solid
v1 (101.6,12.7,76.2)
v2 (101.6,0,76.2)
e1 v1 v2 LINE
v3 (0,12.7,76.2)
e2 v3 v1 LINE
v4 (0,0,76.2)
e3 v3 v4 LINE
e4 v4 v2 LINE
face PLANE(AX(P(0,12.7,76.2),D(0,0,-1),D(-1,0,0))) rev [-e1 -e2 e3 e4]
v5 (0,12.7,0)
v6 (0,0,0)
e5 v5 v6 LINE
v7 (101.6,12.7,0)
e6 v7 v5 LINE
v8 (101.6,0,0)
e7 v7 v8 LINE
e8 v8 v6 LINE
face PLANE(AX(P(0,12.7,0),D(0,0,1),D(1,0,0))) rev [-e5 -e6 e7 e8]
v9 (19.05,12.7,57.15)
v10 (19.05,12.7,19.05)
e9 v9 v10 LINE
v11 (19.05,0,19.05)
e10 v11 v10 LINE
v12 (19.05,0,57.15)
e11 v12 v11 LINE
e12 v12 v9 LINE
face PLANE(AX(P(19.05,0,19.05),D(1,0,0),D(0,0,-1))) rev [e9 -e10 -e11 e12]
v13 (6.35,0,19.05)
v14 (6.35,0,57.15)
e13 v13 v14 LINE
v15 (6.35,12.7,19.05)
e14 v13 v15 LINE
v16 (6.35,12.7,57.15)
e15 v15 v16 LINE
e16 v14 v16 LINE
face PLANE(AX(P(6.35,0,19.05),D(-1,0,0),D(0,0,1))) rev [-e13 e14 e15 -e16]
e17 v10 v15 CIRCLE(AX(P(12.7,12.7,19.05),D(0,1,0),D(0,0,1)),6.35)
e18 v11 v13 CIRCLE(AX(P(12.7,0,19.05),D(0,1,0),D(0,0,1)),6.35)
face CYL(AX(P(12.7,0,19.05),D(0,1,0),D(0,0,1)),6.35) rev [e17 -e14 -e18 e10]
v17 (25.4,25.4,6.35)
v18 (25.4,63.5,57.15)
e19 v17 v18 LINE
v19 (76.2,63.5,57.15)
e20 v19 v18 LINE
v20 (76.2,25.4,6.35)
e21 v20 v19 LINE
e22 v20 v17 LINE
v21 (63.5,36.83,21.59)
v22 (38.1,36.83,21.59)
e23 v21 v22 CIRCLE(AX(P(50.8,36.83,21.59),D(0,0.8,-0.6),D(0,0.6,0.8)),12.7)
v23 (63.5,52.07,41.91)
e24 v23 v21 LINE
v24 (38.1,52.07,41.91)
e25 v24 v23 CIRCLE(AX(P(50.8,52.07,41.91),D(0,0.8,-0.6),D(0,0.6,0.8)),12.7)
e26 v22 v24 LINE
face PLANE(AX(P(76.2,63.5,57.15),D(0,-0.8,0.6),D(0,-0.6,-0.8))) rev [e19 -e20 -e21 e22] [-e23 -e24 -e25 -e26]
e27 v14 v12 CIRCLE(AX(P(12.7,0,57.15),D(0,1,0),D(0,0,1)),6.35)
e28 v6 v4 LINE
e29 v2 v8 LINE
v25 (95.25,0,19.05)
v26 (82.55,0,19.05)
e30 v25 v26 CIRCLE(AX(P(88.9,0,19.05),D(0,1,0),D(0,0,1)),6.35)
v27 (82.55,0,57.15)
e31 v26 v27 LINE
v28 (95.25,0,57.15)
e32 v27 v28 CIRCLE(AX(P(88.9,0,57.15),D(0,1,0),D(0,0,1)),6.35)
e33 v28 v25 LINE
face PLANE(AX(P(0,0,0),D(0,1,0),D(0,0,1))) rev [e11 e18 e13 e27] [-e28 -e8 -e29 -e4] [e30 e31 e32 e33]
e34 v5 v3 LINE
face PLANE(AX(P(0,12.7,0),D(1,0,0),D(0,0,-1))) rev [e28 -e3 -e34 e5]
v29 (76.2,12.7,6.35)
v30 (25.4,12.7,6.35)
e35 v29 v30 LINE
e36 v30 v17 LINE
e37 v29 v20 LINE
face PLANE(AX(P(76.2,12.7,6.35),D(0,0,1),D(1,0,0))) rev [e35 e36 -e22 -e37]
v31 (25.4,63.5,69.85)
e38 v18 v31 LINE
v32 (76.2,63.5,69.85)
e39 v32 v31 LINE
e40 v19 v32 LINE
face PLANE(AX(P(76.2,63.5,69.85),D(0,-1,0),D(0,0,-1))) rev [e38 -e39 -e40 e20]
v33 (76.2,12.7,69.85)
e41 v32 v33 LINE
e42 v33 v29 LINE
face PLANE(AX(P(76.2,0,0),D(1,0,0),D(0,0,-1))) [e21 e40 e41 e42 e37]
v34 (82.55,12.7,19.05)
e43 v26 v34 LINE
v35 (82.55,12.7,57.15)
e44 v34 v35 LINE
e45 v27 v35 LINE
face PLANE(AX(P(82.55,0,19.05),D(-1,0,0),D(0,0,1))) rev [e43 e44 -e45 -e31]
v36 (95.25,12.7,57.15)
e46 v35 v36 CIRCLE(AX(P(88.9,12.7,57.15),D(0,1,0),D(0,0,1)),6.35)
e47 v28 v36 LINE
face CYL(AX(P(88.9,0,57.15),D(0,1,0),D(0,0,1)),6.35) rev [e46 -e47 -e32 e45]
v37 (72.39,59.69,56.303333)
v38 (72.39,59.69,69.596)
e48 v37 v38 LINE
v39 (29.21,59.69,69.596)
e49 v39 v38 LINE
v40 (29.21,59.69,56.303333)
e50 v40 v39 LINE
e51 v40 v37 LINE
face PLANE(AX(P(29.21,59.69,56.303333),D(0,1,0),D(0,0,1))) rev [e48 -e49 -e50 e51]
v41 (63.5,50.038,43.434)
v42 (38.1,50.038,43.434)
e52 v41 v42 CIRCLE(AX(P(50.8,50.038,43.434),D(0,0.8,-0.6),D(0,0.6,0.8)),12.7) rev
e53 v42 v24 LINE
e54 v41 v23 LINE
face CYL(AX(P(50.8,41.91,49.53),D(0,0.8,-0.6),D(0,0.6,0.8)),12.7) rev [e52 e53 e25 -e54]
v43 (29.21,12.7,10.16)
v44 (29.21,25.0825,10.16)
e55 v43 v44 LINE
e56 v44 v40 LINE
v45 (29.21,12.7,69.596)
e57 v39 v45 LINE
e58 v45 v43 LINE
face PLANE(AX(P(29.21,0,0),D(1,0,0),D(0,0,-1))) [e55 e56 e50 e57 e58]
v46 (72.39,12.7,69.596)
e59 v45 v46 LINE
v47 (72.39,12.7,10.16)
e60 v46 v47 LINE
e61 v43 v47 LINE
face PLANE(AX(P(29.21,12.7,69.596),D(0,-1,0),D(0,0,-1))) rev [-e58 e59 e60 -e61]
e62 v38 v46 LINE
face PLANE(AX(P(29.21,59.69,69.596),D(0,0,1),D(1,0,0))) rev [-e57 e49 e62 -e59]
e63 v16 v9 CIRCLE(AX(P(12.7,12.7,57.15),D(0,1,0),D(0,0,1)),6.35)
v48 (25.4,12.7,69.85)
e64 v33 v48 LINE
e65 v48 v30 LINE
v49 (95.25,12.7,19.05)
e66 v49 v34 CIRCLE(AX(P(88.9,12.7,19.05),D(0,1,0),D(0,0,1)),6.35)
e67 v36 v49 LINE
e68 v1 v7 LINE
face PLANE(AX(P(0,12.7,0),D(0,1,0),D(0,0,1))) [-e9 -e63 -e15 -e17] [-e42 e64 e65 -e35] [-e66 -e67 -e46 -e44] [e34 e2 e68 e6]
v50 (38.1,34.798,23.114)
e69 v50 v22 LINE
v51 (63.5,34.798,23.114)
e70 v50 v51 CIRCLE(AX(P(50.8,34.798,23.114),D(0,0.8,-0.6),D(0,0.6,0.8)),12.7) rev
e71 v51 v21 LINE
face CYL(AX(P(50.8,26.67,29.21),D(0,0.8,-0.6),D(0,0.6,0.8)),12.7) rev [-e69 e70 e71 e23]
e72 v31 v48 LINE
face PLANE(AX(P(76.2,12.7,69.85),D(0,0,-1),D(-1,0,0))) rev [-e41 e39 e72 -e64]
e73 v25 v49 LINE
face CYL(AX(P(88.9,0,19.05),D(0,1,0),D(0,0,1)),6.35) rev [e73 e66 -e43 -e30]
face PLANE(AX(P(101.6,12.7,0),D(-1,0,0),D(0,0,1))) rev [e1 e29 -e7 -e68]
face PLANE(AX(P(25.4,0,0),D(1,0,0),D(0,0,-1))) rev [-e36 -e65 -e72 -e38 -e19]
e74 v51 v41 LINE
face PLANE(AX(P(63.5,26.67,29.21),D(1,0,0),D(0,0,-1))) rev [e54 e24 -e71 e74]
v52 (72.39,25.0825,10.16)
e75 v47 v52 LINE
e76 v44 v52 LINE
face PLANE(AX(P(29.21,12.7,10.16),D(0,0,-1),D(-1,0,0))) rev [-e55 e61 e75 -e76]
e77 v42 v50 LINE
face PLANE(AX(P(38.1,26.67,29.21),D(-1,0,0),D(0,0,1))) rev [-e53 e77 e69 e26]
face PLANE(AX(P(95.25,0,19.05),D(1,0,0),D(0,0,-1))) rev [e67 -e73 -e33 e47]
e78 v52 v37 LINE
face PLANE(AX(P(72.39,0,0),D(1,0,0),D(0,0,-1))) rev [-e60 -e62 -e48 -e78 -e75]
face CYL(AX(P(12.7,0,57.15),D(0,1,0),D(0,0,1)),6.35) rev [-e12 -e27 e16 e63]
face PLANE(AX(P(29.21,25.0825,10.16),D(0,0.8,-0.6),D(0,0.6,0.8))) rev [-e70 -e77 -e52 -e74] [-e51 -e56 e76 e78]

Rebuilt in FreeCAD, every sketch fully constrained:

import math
import FreeCAD as App
import Part
import Sketcher

V = App.Vector
Q = App.Units.Quantity

doc = App.newDocument("Part")
body = doc.addObject("PartDesign::Body", "Body")

sketch1 = body.newObject("Sketcher::SketchObject", "Sketch")
sketch1.AttachmentSupport = (doc.getObject("XZ_Plane"), [""])
sketch1.MapMode = "FlatFace"
sketch1.addGeometry(Part.LineSegment(V(0, 0, 0), V(0, 76.2, 0)), False)
sketch1.addGeometry(Part.LineSegment(V(0, 76.2, 0), V(101.6, 76.2, 0)), False)
sketch1.addGeometry(Part.LineSegment(V(101.6, 76.2, 0), V(101.6, 0, 0)), False)
sketch1.addGeometry(Part.LineSegment(V(101.6, 0, 0), V(0, 0, 0)), False)
sketch1.addConstraint(Sketcher.Constraint("Coincident", 0, 2, 1, 1))
sketch1.addConstraint(Sketcher.Constraint("Coincident", 1, 2, 2, 1))
sketch1.addConstraint(Sketcher.Constraint("Coincident", 2, 2, 3, 1))
sketch1.addConstraint(Sketcher.Constraint("Coincident", 3, 2, 0, 1))
sketch1.addConstraint(Sketcher.Constraint("Vertical", 0))
sketch1.addConstraint(Sketcher.Constraint("Horizontal", 1))
sketch1.addConstraint(Sketcher.Constraint("Vertical", 2))
sketch1.addConstraint(Sketcher.Constraint("Horizontal", 3))
sketch1.addConstraint(Sketcher.Constraint("Coincident", 3, 2, -1, 1))
sketch1.addConstraint(Sketcher.Constraint("DistanceX", 1, 1, 1, 2, Q("4 in")))
sketch1.addConstraint(Sketcher.Constraint("DistanceY", 0, 1, 0, 2, Q("3 in")))
pad1 = body.newObject("PartDesign::Pad", "Pad")
pad1.Profile = sketch1
pad1.Length = Q("0.5 in")
pad1.Reversed = True

sketch2 = body.newObject("Sketcher::SketchObject", "Sketch001")
sketch2.AttachmentSupport = (doc.getObject("XZ_Plane"), [""])
sketch2.MapMode = "FlatFace"
sketch2.AttachmentOffset = App.Placement(V(0, 0, -0.5 * 25.4), App.Rotation())
sketch2.addGeometry(Part.LineSegment(V(19.05, 57.15, 0), V(19.05, 19.05, 0)), False)
sketch2.addGeometry(Part.ArcOfCircle(Part.Circle(V(12.7, 19.05, 0), V(0, 0, 1), 6.35), math.radians(180), math.radians(360)), False)
sketch2.addGeometry(Part.LineSegment(V(6.35, 19.05, 0), V(6.35, 57.15, 0)), False)
sketch2.addGeometry(Part.ArcOfCircle(Part.Circle(V(12.7, 57.15, 0), V(0, 0, 1), 6.35), math.radians(0), math.radians(180)), False)
sketch2.addGeometry(Part.LineSegment(V(95.25, 57.15, 0), V(95.25, 19.05, 0)), False)
sketch2.addGeometry(Part.ArcOfCircle(Part.Circle(V(88.9, 19.05, 0), V(0, 0, 1), 6.35), math.radians(180), math.radians(360)), False)
sketch2.addGeometry(Part.LineSegment(V(82.55, 19.05, 0), V(82.55, 57.15, 0)), False)
sketch2.addGeometry(Part.ArcOfCircle(Part.Circle(V(88.9, 57.15, 0), V(0, 0, 1), 6.35), math.radians(0), math.radians(180)), False)
sketch2.addConstraint(Sketcher.Constraint("Tangent", 0, 2, 1, 2))
sketch2.addConstraint(Sketcher.Constraint("Tangent", 1, 1, 2, 1))
sketch2.addConstraint(Sketcher.Constraint("Tangent", 2, 2, 3, 2))
sketch2.addConstraint(Sketcher.Constraint("Tangent", 3, 1, 0, 1))
sketch2.addConstraint(Sketcher.Constraint("Tangent", 4, 2, 5, 2))
sketch2.addConstraint(Sketcher.Constraint("Tangent", 5, 1, 6, 1))
sketch2.addConstraint(Sketcher.Constraint("Tangent", 6, 2, 7, 2))
sketch2.addConstraint(Sketcher.Constraint("Tangent", 7, 1, 4, 1))
sketch2.addConstraint(Sketcher.Constraint("Vertical", 0))
sketch2.addConstraint(Sketcher.Constraint("Vertical", 2))
sketch2.addConstraint(Sketcher.Constraint("Vertical", 4))
sketch2.addConstraint(Sketcher.Constraint("Vertical", 6))
sketch2.addConstraint(Sketcher.Constraint("Equal", 3, 5))
sketch2.addConstraint(Sketcher.Constraint("Horizontal", 1, 3, 5, 3))
sketch2.addConstraint(Sketcher.Constraint("Horizontal", 3, 3, 7, 3))
sketch2.addConstraint(Sketcher.Constraint("Radius", 1, Q("0.25 in")))
sketch2.addConstraint(Sketcher.Constraint("DistanceY", 0, 2, 0, 1, Q("1.5 in")))
sketch2.addConstraint(Sketcher.Constraint("DistanceX", 1, 3, 5, 3, Q("3 in")))
sketch2.addConstraint(Sketcher.Constraint("DistanceX", -1, 1, 1, 3, Q("0.5 in")))
sketch2.addConstraint(Sketcher.Constraint("DistanceY", -1, 1, 1, 3, Q("0.75 in")))
pocket1 = body.newObject("PartDesign::Pocket", "Pocket")
pocket1.Profile = sketch2
pocket1.Length = Q("0.5 in")
pocket1.Reversed = True

sketch3 = body.newObject("Sketcher::SketchObject", "Sketch002")
sketch3.AttachmentSupport = (doc.getObject("YZ_Plane"), [""])
sketch3.MapMode = "FlatFace"
sketch3.AttachmentOffset = App.Placement(V(0, 0, 2 * 25.4), App.Rotation())
sketch3.addGeometry(Part.LineSegment(V(12.7, 6.35, 0), V(25.4, 6.35, 0)), False)
sketch3.addGeometry(Part.LineSegment(V(25.4, 6.35, 0), V(63.5, 57.15, 0)), False)
sketch3.addGeometry(Part.LineSegment(V(63.5, 57.15, 0), V(63.5, 69.85, 0)), False)
sketch3.addGeometry(Part.LineSegment(V(63.5, 69.85, 0), V(12.7, 69.85, 0)), False)
sketch3.addGeometry(Part.LineSegment(V(12.7, 69.85, 0), V(12.7, 6.35, 0)), False)
sketch3.addConstraint(Sketcher.Constraint("Coincident", 0, 2, 1, 1))
sketch3.addConstraint(Sketcher.Constraint("Coincident", 1, 2, 2, 1))
sketch3.addConstraint(Sketcher.Constraint("Coincident", 2, 2, 3, 1))
sketch3.addConstraint(Sketcher.Constraint("Coincident", 3, 2, 4, 1))
sketch3.addConstraint(Sketcher.Constraint("Coincident", 4, 2, 0, 1))
sketch3.addConstraint(Sketcher.Constraint("Horizontal", 0))
sketch3.addConstraint(Sketcher.Constraint("Vertical", 2))
sketch3.addConstraint(Sketcher.Constraint("Horizontal", 3))
sketch3.addConstraint(Sketcher.Constraint("Vertical", 4))
sketch3.addConstraint(Sketcher.Constraint("Equal", 0, 2))
sketch3.addConstraint(Sketcher.Constraint("DistanceX", 3, 2, 3, 1, Q("2 in")))
sketch3.addConstraint(Sketcher.Constraint("DistanceX", 0, 1, 0, 2, Q("0.5 in")))
sketch3.addConstraint(Sketcher.Constraint("DistanceY", 4, 2, 4, 1, Q("2.5 in")))
sketch3.addConstraint(Sketcher.Constraint("DistanceX", -1, 1, 0, 2, Q("1 in")))
sketch3.addConstraint(Sketcher.Constraint("DistanceY", -1, 1, 0, 2, Q("0.25 in")))
pad2 = body.newObject("PartDesign::Pad", "Pad001")
pad2.Profile = sketch3
pad2.Length = Q("2 in")
pad2.Midplane = True

sketch4 = body.newObject("Sketcher::SketchObject", "Sketch003")
sketch4.Placement = App.Placement(V(0, 13.208, -9.906), App.Rotation(V(1, 0, 0), V(0, -0.6, -0.8), V(0, 0.8, -0.6), "ZXY"))
sketch4.addGeometry(Part.LineSegment(V(63.5, -64.77, 0), V(63.5, -39.37, 0)), False)
sketch4.addGeometry(Part.ArcOfCircle(Part.Circle(V(50.8, -39.37, 0), V(0, 0, 1), 12.7), math.radians(0), math.radians(180)), False)
sketch4.addGeometry(Part.LineSegment(V(38.1, -39.37, 0), V(38.1, -64.77, 0)), False)
sketch4.addGeometry(Part.ArcOfCircle(Part.Circle(V(50.8, -64.77, 0), V(0, 0, 1), 12.7), math.radians(180), math.radians(360)), False)
sketch4.addConstraint(Sketcher.Constraint("Tangent", 0, 2, 1, 1))
sketch4.addConstraint(Sketcher.Constraint("Tangent", 1, 2, 2, 1))
sketch4.addConstraint(Sketcher.Constraint("Tangent", 2, 2, 3, 1))
sketch4.addConstraint(Sketcher.Constraint("Tangent", 3, 2, 0, 1))
sketch4.addConstraint(Sketcher.Constraint("Vertical", 0))
sketch4.addConstraint(Sketcher.Constraint("Vertical", 2))
sketch4.addConstraint(Sketcher.Constraint("Radius", 1, Q("0.5 in")))
sketch4.addConstraint(Sketcher.Constraint("DistanceY", 0, 1, 0, 2, Q("1 in")))
sketch4.addConstraint(Sketcher.Constraint("DistanceX", -1, 1, 1, 3, Q("2 in")))
sketch4.addConstraint(Sketcher.Constraint("DistanceY", 1, 3, -1, 1, Q("1.55 in")))
pocket2 = body.newObject("PartDesign::Pocket", "Pocket001")
pocket2.Profile = sketch4
pocket2.Length = Q("0.5 in")

sketch5 = body.newObject("Sketcher::SketchObject", "Sketch004")
sketch5.AttachmentSupport = (doc.getObject("YZ_Plane"), [""])
sketch5.MapMode = "FlatFace"
sketch5.AttachmentOffset = App.Placement(V(0, 0, 2 * 25.4), App.Rotation())
sketch5.addGeometry(Part.LineSegment(V(25.0825, 10.16, 0), V(59.69, 56.303333, 0)), False)
sketch5.addGeometry(Part.LineSegment(V(59.69, 56.303333, 0), V(59.69, 69.596, 0)), False)
sketch5.addGeometry(Part.LineSegment(V(59.69, 69.596, 0), V(12.7, 69.596, 0)), False)
sketch5.addGeometry(Part.LineSegment(V(12.7, 69.596, 0), V(12.7, 10.16, 0)), False)
sketch5.addGeometry(Part.LineSegment(V(12.7, 10.16, 0), V(25.0825, 10.16, 0)), False)
sketch5.addConstraint(Sketcher.Constraint("Coincident", 0, 2, 1, 1))
sketch5.addConstraint(Sketcher.Constraint("Coincident", 1, 2, 2, 1))
sketch5.addConstraint(Sketcher.Constraint("Coincident", 2, 2, 3, 1))
sketch5.addConstraint(Sketcher.Constraint("Coincident", 3, 2, 4, 1))
sketch5.addConstraint(Sketcher.Constraint("Coincident", 4, 2, 0, 1))
sketch5.addConstraint(Sketcher.Constraint("Vertical", 1))
sketch5.addConstraint(Sketcher.Constraint("Horizontal", 2))
sketch5.addConstraint(Sketcher.Constraint("Vertical", 3))
sketch5.addConstraint(Sketcher.Constraint("Horizontal", 4))
sketch5.addConstraint(Sketcher.Constraint("DistanceX", 2, 2, 2, 1, Q("1.85 in")))
sketch5.addConstraint(Sketcher.Constraint("DistanceY", 3, 2, 3, 1, Q("2.34 in")))
sketch5.addConstraint(Sketcher.Constraint("DistanceX", -1, 1, 2, 2, Q("0.5 in")))
sketch5.addConstraint(Sketcher.Constraint("DistanceY", -1, 1, 3, 2, Q("0.4 in")))
sketch5.addConstraint(Sketcher.Constraint("DistanceX", 4, 1, 4, 2, Q("0.4875 in")))
sketch5.addConstraint(Sketcher.Constraint("DistanceY", 1, 1, 1, 2, 13.292667))
pocket3 = body.newObject("PartDesign::Pocket", "Pocket002")
pocket3.Profile = sketch5
pocket3.Length = Q("1.7 in")
pocket3.Midplane = True

doc.recompute()
